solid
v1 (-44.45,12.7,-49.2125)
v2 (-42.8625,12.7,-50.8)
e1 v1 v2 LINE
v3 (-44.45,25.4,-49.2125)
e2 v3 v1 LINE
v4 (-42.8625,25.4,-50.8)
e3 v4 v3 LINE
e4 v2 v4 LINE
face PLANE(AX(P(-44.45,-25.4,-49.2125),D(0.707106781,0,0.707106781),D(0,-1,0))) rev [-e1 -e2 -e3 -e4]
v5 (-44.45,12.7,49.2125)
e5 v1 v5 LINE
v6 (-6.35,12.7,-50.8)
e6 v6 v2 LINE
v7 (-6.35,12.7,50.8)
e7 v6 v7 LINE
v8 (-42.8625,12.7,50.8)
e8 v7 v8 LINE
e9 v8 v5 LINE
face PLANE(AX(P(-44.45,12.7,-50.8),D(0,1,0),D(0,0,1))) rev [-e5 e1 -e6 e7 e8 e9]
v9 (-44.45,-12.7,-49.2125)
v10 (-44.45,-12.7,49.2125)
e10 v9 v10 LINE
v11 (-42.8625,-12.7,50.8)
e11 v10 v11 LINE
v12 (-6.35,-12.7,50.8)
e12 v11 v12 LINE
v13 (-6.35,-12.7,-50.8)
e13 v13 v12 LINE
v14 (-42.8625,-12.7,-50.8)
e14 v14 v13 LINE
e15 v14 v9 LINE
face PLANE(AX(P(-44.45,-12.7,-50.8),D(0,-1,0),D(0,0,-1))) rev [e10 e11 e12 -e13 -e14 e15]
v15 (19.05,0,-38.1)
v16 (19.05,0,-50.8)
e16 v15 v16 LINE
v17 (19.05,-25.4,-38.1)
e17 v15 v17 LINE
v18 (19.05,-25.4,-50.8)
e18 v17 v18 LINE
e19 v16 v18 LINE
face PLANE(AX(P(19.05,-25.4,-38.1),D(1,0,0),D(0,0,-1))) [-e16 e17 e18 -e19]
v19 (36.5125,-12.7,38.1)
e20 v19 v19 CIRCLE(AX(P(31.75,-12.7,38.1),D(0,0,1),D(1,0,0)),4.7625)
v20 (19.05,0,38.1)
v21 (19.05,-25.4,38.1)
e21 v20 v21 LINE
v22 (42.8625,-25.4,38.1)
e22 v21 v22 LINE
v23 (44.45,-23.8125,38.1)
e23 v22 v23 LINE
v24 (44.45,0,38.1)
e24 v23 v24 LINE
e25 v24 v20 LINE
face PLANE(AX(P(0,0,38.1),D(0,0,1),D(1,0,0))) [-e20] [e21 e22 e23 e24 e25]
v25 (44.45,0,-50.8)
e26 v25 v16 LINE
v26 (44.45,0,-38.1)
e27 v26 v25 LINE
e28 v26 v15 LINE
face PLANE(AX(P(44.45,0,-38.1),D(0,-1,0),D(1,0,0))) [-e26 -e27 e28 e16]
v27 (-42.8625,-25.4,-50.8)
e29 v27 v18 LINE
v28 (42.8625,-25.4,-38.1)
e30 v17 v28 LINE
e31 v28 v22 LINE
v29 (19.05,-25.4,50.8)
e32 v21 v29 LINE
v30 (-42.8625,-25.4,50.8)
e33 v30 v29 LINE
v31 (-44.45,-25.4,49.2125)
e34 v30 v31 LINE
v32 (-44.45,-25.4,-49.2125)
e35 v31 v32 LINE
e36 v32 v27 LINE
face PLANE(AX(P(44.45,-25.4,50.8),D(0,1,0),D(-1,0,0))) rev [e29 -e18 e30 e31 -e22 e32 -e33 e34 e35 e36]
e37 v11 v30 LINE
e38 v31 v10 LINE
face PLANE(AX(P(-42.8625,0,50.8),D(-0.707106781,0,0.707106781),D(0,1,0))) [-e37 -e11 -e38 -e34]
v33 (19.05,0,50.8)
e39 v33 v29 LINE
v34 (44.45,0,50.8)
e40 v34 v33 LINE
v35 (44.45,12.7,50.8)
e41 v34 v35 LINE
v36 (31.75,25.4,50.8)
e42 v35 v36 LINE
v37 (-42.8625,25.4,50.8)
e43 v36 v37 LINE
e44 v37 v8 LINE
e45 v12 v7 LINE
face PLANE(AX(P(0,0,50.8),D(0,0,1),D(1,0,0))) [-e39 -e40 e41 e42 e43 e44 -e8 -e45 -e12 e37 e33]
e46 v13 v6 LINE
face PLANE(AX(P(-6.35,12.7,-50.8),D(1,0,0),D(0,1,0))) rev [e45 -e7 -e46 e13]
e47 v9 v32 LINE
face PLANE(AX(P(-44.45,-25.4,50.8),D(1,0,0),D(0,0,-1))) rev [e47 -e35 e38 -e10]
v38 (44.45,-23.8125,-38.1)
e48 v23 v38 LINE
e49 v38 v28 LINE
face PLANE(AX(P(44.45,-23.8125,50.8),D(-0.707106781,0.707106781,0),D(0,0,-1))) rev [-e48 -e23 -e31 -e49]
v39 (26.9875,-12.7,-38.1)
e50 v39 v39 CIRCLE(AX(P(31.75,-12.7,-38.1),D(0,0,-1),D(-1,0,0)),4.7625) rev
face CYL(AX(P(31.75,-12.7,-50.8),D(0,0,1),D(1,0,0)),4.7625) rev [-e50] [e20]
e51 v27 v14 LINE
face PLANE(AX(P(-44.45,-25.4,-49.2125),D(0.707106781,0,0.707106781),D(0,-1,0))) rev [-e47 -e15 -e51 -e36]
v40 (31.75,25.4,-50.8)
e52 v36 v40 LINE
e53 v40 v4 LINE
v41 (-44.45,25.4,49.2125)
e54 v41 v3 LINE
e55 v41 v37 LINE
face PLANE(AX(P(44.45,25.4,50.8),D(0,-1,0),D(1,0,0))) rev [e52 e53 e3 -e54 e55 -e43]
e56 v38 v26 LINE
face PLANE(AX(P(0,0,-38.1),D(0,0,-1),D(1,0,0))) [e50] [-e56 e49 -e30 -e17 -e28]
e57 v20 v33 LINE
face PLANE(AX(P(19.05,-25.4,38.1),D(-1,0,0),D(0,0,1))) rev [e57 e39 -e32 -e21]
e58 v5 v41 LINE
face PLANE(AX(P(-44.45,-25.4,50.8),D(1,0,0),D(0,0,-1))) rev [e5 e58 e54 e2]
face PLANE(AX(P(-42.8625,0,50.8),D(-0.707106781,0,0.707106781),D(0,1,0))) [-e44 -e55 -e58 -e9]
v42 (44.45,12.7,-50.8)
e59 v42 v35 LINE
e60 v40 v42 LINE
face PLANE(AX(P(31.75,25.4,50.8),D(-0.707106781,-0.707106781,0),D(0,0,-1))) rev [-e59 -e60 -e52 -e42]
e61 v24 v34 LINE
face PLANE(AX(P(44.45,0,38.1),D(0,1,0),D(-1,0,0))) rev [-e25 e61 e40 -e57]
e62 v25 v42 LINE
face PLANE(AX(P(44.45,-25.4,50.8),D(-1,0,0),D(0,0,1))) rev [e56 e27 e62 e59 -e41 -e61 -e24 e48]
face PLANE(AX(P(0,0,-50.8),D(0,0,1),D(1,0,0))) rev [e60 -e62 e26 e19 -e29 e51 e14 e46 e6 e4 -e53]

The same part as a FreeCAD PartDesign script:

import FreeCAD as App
import Part
import Sketcher
from FreeCAD import Vector
Q = App.Units.Quantity


def edges_at(feature, points):
    """Names of the edges that pass closest to the given points."""
    edges = feature.Shape.Edges
    near = lambda p: min(range(len(edges)), key=lambda i: edges[i].distToShape(Part.Vertex(*p))[0])
    return sorted({f"Edge{near(p) + 1}" for p in points})


def add_polygon(sketch, points):
    """Adds a closed chain of lines whose ends are joined by coincident constraints."""
    first, n = sketch.GeometryCount, len(points)
    for a, b in zip(points, points[1:] + points[:1]):
        sketch.addGeometry(Part.LineSegment(App.Vector(*a, 0), App.Vector(*b, 0)), False)
    for i in range(n):
        sketch.addConstraint(Sketcher.Constraint("Coincident", first + i, 2, first + (i + 1) % n, 1))

doc = App.newDocument("Part")
body = doc.addObject("PartDesign::Body", "Body")

# Sketch on XY plane
sketch1 = doc.addObject("Sketcher::SketchObject", "Sketch")
body.addObject(sketch1)
sketch1.AttachmentSupport = (doc.XY_Plane, [""])
sketch1.MapMode = "FlatFace"
add_polygon(sketch1, [(-44, 25), (-44, -25), (44, -25), (44, 25)])  # lines 0-3
sketch1.addConstraint(Sketcher.Constraint("Vertical", 0))
sketch1.addConstraint(Sketcher.Constraint("Horizontal", 1))
sketch1.addConstraint(Sketcher.Constraint("Vertical", 2))
sketch1.addConstraint(Sketcher.Constraint("Horizontal", 3))
sketch1.addConstraint(Sketcher.Constraint("Symmetric", 0, 2, 2, 2, -1, 1))
sketch1.addConstraint(Sketcher.Constraint("DistanceY", 0, 2, 0, 1, Q("2 in")))
sketch1.addConstraint(Sketcher.Constraint("DistanceX", 1, 1, 1, 2, Q("3.5 in")))
pad1 = doc.addObject("PartDesign::Pad", "Pad")
body.addObject(pad1)
pad1.Profile = sketch1
pad1.Length = Q("4 in")
pad1.Midplane = True

# Sketch on XY plane
sketch2 = doc.addObject("Sketcher::SketchObject", "Sketch001")
body.addObject(sketch2)
sketch2.AttachmentSupport = (doc.XY_Plane, [""])
sketch2.MapMode = "FlatFace"
sketch2.AttachmentOffset = App.Placement(Vector(0, 0, 2 * 25.4), App.Rotation())
add_polygon(sketch2, [(19, 0), (19, -25), (44, -25), (44, 0)])  # lines 0-3
sketch2.addConstraint(Sketcher.Constraint("Vertical", 0))
sketch2.addConstraint(Sketcher.Constraint("Horizontal", 1))
sketch2.addConstraint(Sketcher.Constraint("Vertical", 2))
sketch2.addConstraint(Sketcher.Constraint("Horizontal", 3))
sketch2.addConstraint(Sketcher.Constraint("PointOnObject", 2, 2, -1))
sketch2.addConstraint(Sketcher.Constraint("Equal", 3, 0))
sketch2.addConstraint(Sketcher.Constraint("DistanceX", 1, 1, 1, 2, Q("1 in")))
sketch2.addConstraint(Sketcher.Constraint("DistanceX", -1, 1, 0, 2, Q("0.75 in")))
pocket1 = doc.addObject("PartDesign::Pocket", "Pocket")
body.addObject(pocket1)
pocket1.Profile = sketch2
pocket1.Length = Q("0.5 in")

# Sketch on XY plane
sketch3 = doc.addObject("Sketcher::SketchObject", "Sketch002")
body.addObject(sketch3)
sketch3.AttachmentSupport = (doc.XY_Plane, [""])
sketch3.MapMode = "FlatFace"
sketch3.AttachmentOffset = App.Placement(Vector(0, 0, 1.5 * 25.4), App.Rotation())
sketch3.addGeometry(Part.Circle(Vector(31.8, -12.7, 0), Vector(0, 0, 1), 4.8), False)
sketch3.addConstraint(Sketcher.Constraint("Diameter", 0, Q("0.375 in")))
sketch3.addConstraint(Sketcher.Constraint("DistanceY", 0, 3, -1, 1, Q("0.5 in")))
sketch3.addConstraint(Sketcher.Constraint("DistanceX", -1, 1, 0, 3, Q("1.25 in")))
pocket2 = doc.addObject("PartDesign::Pocket", "Pocket001")
body.addObject(pocket2)
pocket2.Profile = sketch3
pocket2.Type = "ThroughAll"
doc.recompute()

mirrored = doc.addObject("PartDesign::Mirrored", "Mirrored")
body.addObject(mirrored)
mirrored.Originals = [pocket1]
mirrored.MirrorPlane = (doc.XY_Plane, [""])
body.Tip = mirrored

# Sketch on XY plane
sketch4 = doc.addObject("Sketcher::SketchObject", "Sketch003")
body.addObject(sketch4)
sketch4.AttachmentSupport = (doc.XY_Plane, [""])
sketch4.MapMode = "FlatFace"
sketch4.AttachmentOffset = App.Placement(Vector(0, 0, 2 * 25.4), App.Rotation())
add_polygon(sketch4, [(-44, 13), (-44, -13), (-6, -13), (-6, 13)])  # lines 0-3
sketch4.addConstraint(Sketcher.Constraint("Vertical", 0))
sketch4.addConstraint(Sketcher.Constraint("Horizontal", 1))
sketch4.addConstraint(Sketcher.Constraint("Vertical", 2))
sketch4.addConstraint(Sketcher.Constraint("Horizontal", 3))
sketch4.addConstraint(Sketcher.Constraint("DistanceY", 0, 2, 0, 1, Q("1 in")))
sketch4.addConstraint(Sketcher.Constraint("DistanceX", 1, 1, 1, 2, Q("1.5 in")))
sketch4.addConstraint(Sketcher.Constraint("DistanceY", 0, 2, -1, 1, Q("0.5 in")))
sketch4.addConstraint(Sketcher.Constraint("DistanceX", 0, 2, -1, 1, Q("1.75 in")))
pocket3 = doc.addObject("PartDesign::Pocket", "Pocket002")
body.addObject(pocket3)
pocket3.Profile = sketch4
pocket3.Type = "ThroughAll"
doc.recompute()

chamfer = doc.addObject("PartDesign::Chamfer", "Chamfer")
body.addObject(chamfer)
chamfer.Base = (pocket3, edges_at(pocket3, [(44.45, 25.4, 0)]))
chamfer.Size = Q("0.5 in")
doc.recompute()

chamfer2 = doc.addObject("PartDesign::Chamfer", "Chamfer001")
body.addObject(chamfer2)
chamfer2.Base = (chamfer, edges_at(chamfer, [
    (44.45, -25.4, 0),
    (-44.45, 19.05, 50.8),
    (-44.45, -19.05, 50.8),
    (-44.45, -19.05, -50.8),
    (-44.45, 19.05, -50.8),
]))
chamfer2.Size = Q("0.0625 in")

doc.recompute()
